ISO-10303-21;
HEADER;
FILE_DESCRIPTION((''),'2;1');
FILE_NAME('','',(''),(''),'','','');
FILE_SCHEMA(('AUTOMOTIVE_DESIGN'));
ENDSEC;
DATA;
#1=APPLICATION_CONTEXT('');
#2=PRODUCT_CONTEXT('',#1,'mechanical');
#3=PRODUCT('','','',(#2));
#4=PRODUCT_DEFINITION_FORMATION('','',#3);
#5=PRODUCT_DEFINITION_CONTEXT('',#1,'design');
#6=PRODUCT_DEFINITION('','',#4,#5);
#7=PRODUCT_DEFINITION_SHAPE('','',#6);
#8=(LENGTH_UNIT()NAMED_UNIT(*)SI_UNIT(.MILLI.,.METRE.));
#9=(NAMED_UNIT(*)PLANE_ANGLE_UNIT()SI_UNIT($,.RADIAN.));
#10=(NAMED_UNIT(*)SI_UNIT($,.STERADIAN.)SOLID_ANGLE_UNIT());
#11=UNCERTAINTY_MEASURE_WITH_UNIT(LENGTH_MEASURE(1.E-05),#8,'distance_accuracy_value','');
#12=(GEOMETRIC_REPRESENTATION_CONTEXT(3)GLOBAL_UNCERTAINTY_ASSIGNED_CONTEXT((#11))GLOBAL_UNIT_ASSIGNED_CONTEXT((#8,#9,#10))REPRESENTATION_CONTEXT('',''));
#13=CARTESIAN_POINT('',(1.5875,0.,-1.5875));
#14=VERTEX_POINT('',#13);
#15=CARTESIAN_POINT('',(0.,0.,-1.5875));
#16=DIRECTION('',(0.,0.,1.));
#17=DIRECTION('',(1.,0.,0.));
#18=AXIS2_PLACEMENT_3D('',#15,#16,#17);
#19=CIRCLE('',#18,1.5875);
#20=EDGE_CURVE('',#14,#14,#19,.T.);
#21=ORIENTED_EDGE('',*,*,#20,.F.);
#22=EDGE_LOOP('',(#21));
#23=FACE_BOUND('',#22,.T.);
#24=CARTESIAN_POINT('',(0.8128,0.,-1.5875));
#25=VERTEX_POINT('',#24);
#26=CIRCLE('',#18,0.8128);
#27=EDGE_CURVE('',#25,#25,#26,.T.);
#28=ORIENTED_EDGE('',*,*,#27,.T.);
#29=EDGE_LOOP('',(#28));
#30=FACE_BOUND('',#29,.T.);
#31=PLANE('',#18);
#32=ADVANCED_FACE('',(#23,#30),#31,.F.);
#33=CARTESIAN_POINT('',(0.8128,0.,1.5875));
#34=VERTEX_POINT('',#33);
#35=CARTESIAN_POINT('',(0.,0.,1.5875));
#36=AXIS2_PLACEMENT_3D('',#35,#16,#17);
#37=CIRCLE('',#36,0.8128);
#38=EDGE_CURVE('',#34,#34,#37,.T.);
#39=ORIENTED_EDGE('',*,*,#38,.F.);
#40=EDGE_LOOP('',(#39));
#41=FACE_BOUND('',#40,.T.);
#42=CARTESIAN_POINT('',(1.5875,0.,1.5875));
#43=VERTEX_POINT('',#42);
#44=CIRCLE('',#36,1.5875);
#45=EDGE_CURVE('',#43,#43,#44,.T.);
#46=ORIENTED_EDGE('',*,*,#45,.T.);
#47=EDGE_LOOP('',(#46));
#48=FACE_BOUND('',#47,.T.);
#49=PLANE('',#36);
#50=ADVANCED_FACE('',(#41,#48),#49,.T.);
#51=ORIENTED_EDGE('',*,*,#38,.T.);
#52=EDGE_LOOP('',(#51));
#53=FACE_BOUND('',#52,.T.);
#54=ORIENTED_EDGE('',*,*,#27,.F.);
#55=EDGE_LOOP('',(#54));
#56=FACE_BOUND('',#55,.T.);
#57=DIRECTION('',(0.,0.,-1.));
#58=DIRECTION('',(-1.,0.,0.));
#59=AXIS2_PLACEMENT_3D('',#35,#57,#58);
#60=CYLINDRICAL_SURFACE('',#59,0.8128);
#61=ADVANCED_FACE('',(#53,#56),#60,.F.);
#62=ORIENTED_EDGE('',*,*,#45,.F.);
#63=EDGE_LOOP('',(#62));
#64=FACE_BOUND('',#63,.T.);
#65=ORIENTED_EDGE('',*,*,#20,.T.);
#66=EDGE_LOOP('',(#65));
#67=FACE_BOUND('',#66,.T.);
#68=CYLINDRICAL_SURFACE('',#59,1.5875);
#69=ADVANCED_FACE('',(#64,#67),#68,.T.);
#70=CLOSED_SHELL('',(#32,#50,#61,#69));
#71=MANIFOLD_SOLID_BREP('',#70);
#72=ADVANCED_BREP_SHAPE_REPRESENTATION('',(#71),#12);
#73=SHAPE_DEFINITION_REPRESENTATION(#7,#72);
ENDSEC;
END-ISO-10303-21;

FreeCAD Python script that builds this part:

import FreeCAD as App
import Part
import Sketcher
Q = App.Units.Quantity

doc = App.newDocument("Part")
body = doc.addObject("PartDesign::Body", "Body")

sketch1 = body.newObject("Sketcher::SketchObject", "Sketch")
sketch1.AttachmentSupport = (doc.getObject("XY_Plane"), [""])
sketch1.MapMode = "FlatFace"
sketch1.addGeometry([
    Part.Circle(App.Vector(0, 0, 0), App.Vector(0, 0, 1), 1.5875),
    Part.Circle(App.Vector(0, 0, 0), App.Vector(0, 0, 1), 0.8128),
], False)
sketch1.addConstraint([
    Sketcher.Constraint("Coincident", 0, 3, -1, 1),
    Sketcher.Constraint("Coincident", 1, 3, -1, 1),
    Sketcher.Constraint("Diameter", 0, Q("0.125 in")),
    Sketcher.Constraint("Diameter", 1, Q("0.064 in")),
])
pad1 = body.newObject("PartDesign::Pad", "Pad")
pad1.Profile = sketch1
pad1.Length = Q("0.125 in")
pad1.Midplane = True

doc.recompute()
